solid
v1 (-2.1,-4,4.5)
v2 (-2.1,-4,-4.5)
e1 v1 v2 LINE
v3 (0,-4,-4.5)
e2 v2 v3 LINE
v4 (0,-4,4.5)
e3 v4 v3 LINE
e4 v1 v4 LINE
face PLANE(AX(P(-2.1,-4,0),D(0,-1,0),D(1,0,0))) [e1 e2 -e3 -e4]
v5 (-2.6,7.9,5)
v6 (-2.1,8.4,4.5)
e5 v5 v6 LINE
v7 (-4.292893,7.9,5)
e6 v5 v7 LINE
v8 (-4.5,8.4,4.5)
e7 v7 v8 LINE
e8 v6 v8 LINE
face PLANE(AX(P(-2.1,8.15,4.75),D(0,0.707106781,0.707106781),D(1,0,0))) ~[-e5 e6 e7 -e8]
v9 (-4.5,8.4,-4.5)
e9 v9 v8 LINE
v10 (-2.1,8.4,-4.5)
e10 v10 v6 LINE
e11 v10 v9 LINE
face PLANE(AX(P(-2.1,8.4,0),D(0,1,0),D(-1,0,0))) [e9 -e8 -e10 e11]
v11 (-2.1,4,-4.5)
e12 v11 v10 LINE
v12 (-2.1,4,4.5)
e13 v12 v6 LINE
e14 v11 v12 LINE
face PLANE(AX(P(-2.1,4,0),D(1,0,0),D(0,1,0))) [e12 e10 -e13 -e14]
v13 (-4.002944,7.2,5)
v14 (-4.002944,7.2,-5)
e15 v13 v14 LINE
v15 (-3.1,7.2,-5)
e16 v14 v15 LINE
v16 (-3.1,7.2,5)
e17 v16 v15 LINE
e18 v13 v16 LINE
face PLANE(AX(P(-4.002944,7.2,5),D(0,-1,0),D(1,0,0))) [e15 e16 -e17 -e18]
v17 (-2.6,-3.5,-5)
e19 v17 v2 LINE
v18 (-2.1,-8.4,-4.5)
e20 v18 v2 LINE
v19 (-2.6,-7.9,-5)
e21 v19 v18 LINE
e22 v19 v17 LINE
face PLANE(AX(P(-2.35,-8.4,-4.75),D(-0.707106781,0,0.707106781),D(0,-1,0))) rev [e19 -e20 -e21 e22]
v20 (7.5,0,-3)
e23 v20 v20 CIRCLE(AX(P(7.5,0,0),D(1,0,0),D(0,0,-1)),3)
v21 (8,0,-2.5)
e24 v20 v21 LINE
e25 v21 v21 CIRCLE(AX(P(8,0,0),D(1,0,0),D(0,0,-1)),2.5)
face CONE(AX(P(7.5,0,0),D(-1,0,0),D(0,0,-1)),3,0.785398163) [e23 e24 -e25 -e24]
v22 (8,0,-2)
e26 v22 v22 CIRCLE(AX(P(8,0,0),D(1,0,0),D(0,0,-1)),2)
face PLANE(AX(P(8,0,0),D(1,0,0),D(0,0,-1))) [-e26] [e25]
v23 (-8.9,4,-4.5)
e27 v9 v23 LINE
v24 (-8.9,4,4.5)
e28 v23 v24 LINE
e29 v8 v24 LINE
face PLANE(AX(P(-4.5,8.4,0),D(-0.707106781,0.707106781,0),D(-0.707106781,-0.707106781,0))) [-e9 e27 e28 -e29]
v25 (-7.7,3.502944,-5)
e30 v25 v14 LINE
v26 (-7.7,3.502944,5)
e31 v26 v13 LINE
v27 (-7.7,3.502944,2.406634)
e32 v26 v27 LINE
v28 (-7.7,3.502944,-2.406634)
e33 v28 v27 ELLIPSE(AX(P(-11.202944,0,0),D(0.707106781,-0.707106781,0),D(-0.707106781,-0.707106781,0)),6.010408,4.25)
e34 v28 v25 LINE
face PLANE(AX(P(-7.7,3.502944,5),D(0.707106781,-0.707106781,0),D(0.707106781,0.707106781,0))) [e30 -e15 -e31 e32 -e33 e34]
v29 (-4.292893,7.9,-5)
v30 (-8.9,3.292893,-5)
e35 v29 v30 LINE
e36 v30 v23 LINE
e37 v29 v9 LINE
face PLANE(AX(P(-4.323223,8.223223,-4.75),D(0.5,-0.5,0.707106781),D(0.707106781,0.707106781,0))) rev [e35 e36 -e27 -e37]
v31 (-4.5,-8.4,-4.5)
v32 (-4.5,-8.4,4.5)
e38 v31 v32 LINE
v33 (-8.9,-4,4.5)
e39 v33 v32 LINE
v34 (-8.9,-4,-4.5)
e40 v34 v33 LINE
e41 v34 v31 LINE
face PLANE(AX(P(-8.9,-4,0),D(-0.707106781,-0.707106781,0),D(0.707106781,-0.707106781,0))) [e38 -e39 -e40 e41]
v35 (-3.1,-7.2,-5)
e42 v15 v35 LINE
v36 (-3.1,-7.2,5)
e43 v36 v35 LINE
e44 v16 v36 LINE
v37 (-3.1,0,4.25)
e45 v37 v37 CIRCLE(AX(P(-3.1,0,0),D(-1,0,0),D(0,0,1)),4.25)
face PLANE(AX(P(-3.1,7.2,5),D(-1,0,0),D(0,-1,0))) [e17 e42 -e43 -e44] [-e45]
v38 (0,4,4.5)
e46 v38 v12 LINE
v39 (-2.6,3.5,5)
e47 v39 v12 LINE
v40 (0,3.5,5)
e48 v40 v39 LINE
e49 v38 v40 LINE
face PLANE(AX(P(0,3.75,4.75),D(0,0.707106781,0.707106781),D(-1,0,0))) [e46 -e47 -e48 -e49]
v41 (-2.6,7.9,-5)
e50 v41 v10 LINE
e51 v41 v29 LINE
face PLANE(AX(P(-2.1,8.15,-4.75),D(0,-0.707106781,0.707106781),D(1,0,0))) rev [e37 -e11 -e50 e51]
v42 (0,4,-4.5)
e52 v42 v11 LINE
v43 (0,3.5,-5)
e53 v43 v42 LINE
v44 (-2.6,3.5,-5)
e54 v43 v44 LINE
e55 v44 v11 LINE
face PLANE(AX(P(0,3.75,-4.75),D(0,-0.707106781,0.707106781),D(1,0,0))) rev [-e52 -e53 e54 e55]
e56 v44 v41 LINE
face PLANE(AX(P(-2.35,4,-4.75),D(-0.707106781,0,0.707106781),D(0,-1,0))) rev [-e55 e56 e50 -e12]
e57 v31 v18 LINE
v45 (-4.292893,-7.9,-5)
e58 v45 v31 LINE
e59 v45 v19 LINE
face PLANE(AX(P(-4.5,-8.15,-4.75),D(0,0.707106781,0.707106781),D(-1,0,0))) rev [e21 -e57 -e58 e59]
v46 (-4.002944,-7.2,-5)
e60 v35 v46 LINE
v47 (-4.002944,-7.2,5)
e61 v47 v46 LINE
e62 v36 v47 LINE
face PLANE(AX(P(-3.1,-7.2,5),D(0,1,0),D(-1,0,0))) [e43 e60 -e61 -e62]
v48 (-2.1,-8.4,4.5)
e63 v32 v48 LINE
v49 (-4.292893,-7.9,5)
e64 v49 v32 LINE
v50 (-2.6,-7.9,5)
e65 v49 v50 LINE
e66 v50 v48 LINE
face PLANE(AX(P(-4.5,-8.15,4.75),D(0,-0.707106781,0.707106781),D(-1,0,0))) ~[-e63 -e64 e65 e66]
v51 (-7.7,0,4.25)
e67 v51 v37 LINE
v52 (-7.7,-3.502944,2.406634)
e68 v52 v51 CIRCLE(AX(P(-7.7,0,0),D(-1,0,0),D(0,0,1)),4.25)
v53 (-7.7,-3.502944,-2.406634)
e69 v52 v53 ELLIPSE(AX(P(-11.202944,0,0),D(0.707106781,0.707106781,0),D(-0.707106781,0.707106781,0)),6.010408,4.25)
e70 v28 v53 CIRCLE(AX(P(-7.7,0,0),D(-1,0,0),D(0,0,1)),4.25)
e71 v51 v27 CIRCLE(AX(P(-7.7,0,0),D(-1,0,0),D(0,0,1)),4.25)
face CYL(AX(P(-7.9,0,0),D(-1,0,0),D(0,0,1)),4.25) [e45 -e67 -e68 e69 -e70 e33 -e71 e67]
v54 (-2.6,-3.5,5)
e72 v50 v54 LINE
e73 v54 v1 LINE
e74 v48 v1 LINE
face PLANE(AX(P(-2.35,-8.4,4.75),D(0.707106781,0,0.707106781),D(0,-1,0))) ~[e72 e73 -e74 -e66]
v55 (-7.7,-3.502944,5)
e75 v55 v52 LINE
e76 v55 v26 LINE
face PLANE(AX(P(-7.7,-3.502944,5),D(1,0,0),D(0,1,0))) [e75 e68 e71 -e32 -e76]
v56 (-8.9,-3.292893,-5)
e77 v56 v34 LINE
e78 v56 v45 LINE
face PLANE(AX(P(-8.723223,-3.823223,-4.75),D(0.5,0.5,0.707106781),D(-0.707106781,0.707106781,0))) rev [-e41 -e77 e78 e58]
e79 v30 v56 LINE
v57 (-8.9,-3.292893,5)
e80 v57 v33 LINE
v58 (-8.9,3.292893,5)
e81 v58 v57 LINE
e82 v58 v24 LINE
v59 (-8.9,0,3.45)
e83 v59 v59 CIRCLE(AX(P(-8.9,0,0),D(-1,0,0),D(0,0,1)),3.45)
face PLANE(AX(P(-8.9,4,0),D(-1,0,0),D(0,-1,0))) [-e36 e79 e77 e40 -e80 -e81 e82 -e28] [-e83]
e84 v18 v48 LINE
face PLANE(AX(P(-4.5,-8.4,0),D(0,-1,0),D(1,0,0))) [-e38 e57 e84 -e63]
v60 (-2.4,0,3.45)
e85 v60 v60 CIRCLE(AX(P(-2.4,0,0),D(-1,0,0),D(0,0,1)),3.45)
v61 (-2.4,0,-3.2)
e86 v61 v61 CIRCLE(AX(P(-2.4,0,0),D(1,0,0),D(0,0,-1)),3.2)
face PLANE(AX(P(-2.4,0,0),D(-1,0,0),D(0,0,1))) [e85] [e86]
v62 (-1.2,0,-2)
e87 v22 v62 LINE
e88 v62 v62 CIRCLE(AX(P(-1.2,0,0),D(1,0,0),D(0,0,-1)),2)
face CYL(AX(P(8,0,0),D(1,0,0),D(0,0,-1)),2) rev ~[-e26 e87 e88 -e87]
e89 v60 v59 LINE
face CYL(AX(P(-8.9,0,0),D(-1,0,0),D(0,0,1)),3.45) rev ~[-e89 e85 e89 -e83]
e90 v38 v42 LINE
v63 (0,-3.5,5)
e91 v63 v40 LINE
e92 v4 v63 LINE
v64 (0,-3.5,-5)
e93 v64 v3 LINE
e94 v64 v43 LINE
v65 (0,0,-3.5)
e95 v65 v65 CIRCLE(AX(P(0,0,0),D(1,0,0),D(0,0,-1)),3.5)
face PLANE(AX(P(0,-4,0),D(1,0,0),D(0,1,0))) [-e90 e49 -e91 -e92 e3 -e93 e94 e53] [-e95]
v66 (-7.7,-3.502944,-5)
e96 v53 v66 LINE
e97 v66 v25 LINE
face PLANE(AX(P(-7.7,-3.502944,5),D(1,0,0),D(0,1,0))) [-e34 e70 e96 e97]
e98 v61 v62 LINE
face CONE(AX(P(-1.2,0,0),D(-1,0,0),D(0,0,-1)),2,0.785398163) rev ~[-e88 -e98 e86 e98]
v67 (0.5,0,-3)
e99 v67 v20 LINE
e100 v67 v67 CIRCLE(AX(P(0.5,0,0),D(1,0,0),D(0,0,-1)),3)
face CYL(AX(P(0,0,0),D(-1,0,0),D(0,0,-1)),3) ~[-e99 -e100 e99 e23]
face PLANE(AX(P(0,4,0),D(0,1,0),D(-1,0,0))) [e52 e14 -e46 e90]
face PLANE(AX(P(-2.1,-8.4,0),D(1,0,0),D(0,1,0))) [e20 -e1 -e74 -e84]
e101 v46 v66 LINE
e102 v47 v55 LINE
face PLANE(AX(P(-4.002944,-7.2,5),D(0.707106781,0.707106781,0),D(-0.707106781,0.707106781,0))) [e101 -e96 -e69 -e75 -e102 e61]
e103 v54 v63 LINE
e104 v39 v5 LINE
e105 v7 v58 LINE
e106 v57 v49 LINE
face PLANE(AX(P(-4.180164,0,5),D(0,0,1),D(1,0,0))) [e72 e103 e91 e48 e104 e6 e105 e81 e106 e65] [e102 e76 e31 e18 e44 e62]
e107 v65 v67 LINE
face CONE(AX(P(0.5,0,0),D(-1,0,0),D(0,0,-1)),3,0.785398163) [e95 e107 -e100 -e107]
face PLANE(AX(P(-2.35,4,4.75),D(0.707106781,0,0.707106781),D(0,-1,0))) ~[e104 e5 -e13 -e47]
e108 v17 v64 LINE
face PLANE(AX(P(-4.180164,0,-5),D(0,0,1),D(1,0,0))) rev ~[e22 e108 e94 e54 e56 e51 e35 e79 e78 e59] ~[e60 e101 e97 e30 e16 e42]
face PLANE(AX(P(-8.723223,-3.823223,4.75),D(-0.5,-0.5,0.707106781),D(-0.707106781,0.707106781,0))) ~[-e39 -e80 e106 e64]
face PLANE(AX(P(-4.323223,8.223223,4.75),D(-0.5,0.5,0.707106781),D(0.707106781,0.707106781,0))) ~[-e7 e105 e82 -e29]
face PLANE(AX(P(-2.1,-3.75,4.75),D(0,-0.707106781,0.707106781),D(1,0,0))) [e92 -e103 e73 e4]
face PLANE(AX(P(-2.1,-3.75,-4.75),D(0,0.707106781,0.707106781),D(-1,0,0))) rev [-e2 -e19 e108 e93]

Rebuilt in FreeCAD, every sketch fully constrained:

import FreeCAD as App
import Part
import Sketcher

V = App.Vector


def edges_at(feature, points):
    """Names of the edges that pass closest to the given points."""
    edges = feature.Shape.Edges
    near = lambda p: min(range(len(edges)), key=lambda i: edges[i].distToShape(Part.Vertex(*p))[0])
    return sorted({f"Edge{near(p) + 1}" for p in points})


def add_polygon(sketch, points):
    """Adds a closed chain of lines whose ends are joined by coincident constraints."""
    first, n = sketch.GeometryCount, len(points)
    for a, b in zip(points, points[1:] + points[:1]):
        sketch.addGeometry(Part.LineSegment(App.Vector(*a, 0), App.Vector(*b, 0)), False)
    for i in range(n):
        sketch.addConstraint(Sketcher.Constraint("Coincident", first + i, 2, first + (i + 1) % n, 1))

doc = App.newDocument("Part")
body = doc.addObject("PartDesign::Body", "Body")

# Sketch on XY plane
sketch1 = body.newObject("Sketcher::SketchObject", "Sketch")
sketch1.AttachmentSupport = (doc.getObject("XY_Plane"), [""])
sketch1.MapMode = "FlatFace"
add_polygon(sketch1, [(0, 4), (-2.1, 4), (-2.1, 8.4), (-4.5, 8.4), (-8.9, 4), (-8.9, -4), (-4.5, -8.4), (-2.1, -8.4), (-2.1, -4), (0, -4)])  # lines 0-9
sketch1.addConstraint([
    Sketcher.Constraint("Horizontal", 0),
    Sketcher.Constraint("Vertical", 1),
    Sketcher.Constraint("Horizontal", 2),
    Sketcher.Constraint("Vertical", 4),
    Sketcher.Constraint("Horizontal", 6),
    Sketcher.Constraint("Vertical", 7),
    Sketcher.Constraint("Horizontal", 8),
    Sketcher.Constraint("Vertical", 9),
    Sketcher.Constraint("Symmetric", 8, 2, 9, 2, -1, 1),
    Sketcher.Constraint("Symmetric", 2, 2, 5, 2, -1),
    Sketcher.Constraint("Perpendicular", 3, 5),
    Sketcher.Constraint("Horizontal", 0, 2, 3, 2),
    Sketcher.Constraint("Horizontal", 4, 2, 7, 2),
    Sketcher.Constraint("Vertical", 1, 2, 6, 2),
    Sketcher.Constraint("DistanceY", 4, 2, 4, 1, 8.0),
    Sketcher.Constraint("DistanceX", 0, 2, 0, 1, 2.1),
    Sketcher.Constraint("DistanceX", 2, 2, 2, 1, 2.4),
    Sketcher.Constraint("DistanceY", 1, 1, 1, 2, 4.4),
])
pad1 = body.newObject("PartDesign::Pad", "Pad")
pad1.Profile = sketch1
pad1.Length = 10
pad1.Midplane = True

# Sketch on YZ plane
sketch2 = body.newObject("Sketcher::SketchObject", "Sketch001")
sketch2.AttachmentSupport = (doc.getObject("YZ_Plane"), [""])
sketch2.MapMode = "FlatFace"
sketch2.addGeometry(Part.Circle(V(0, 0, 0), V(0, 0, 1), 3), False)
sketch2.addConstraint([
    Sketcher.Constraint("Coincident", 0, 3, -1, 1),
    Sketcher.Constraint("Diameter", 0, 6.0),
])
pad2 = body.newObject("PartDesign::Pad", "Pad001")
pad2.Profile = sketch2
pad2.Length = 8
doc.recompute()

chamfer = body.newObject("PartDesign::Chamfer", "Chamfer")
chamfer.Base = (pad2, edges_at(pad2, [(0, 0, 3), (8, 0, 3)]))
chamfer.Size = 0.5

# Sketch on YZ plane
sketch3 = body.newObject("Sketcher::SketchObject", "Sketch002")
sketch3.AttachmentSupport = (doc.getObject("YZ_Plane"), [""])
sketch3.MapMode = "FlatFace"
sketch3.AttachmentOffset = App.Placement(V(0, 0, 8), App.Rotation())
sketch3.addGeometry(Part.Circle(V(0, 0, 0), V(0, 0, 1), 2), False)
sketch3.addConstraint([
    Sketcher.Constraint("Coincident", 0, 3, -1, 1),
    Sketcher.Constraint("Diameter", 0, 4.0),
])
pocket1 = body.newObject("PartDesign::Pocket", "Pocket")
pocket1.Profile = sketch3
pocket1.Type = "ThroughAll"

# Sketch on YZ plane
sketch4 = body.newObject("Sketcher::SketchObject", "Sketch003")
sketch4.AttachmentSupport = (doc.getObject("YZ_Plane"), [""])
sketch4.MapMode = "FlatFace"
sketch4.AttachmentOffset = App.Placement(V(0, 0, -8.9), App.Rotation())
sketch4.addGeometry(Part.Circle(V(0, 0, 0), V(0, 0, 1), 3.5), False)
sketch4.addConstraint([
    Sketcher.Constraint("Coincident", 0, 3, -1, 1),
    Sketcher.Constraint("Diameter", 0, 6.9),
])
pocket2 = body.newObject("PartDesign::Pocket", "Pocket001")
pocket2.Profile = sketch4
pocket2.Length = 6.5
pocket2.Reversed = True

# Sketch on XY plane
sketch5 = body.newObject("Sketcher::SketchObject", "Sketch004")
sketch5.AttachmentSupport = (doc.getObject("XY_Plane"), [""])
sketch5.MapMode = "FlatFace"
sketch5.AttachmentOffset = App.Placement(V(0, 0, 5), App.Rotation())
add_polygon(sketch5, [(-3.1, -7.2), (-3.1, 7.2), (-4, 7.2), (-7.7, 3.5), (-7.7, -3.5), (-4, -7.2)])  # lines 0-5
sketch5.addConstraint([
    Sketcher.Constraint("Vertical", 0),
    Sketcher.Constraint("Horizontal", 1),
    Sketcher.Constraint("Vertical", 3),
    Sketcher.Constraint("Horizontal", 5),
    Sketcher.Constraint("Symmetric", 1, 2, 4, 2, -1),
    Sketcher.Constraint("Perpendicular", 2, 4),
    Sketcher.Constraint("Equal", 2, 4),
    Sketcher.Constraint("DistanceY", 0, 1, 0, 2, 14.4),
    Sketcher.Constraint("DistanceX", 0, 2, -1, 1, 3.1),
    Sketcher.Constraint("DistanceX", 2, 2, -1, 1, 7.7),
    Sketcher.Constraint("DistanceX", 1, 2, 1, 1, 0.902944),
])
pocket3 = body.newObject("PartDesign::Pocket", "Pocket002")
pocket3.Profile = sketch5
pocket3.Type = "ThroughAll"
doc.recompute()

chamfer2 = body.newObject("PartDesign::Chamfer", "Chamfer001")
chamfer2.Base = (pocket3, edges_at(pocket3, [
    (-1.05, -4, -5),
    (-2.1, -6.2, -5),
    (-3.3, -8.4, -5),
    (-6.7, -6.2, -5),
    (-6.7, 6.2, -5),
    (-3.3, 8.4, -5),
    (-2.1, 6.2, 5),
    (-2.1, 6.2, -5),
    (-1.05, 4, -5),
    (-3.3, 8.4, 5),
    (-6.7, 6.2, 5),
    (-6.7, -6.2, 5),
    (-3.3, -8.4, 5),
    (-2.1, -6.2, 5),
    (-1.05, -4, 5),
    (-1.05, 4, 5),
]))
chamfer2.Size = 0.5
doc.recompute()

chamfer3 = body.newObject("PartDesign::Chamfer", "Chamfer002")
chamfer3.Base = (chamfer2, edges_at(chamfer2, [(-2.4, 0, 2)]))
chamfer3.Size = 1.2

# Sketch on YZ plane
sketch6 = body.newObject("Sketcher::SketchObject", "Sketch005")
sketch6.AttachmentSupport = (doc.getObject("YZ_Plane"), [""])
sketch6.MapMode = "FlatFace"
sketch6.AttachmentOffset = App.Placement(V(0, 0, -7.9), App.Rotation())
sketch6.addGeometry([
    Part.Circle(V(0, 0, 0), V(0, 0, 1), 4.2),
    Part.Circle(V(0, 0, 0), V(0, 0, 1), 3.5),
], False)
sketch6.addConstraint([
    Sketcher.Constraint("Coincident", 0, 3, -1, 1),
    Sketcher.Constraint("Coincident", 1, 3, -1, 1),
    Sketcher.Constraint("Diameter", 0, 8.5),
    Sketcher.Constraint("Diameter", 1, 6.9),
])
pad3 = body.newObject("PartDesign::Pad", "Pad002")
pad3.Profile = sketch6
pad3.Length = 4.8

doc.recompute()
